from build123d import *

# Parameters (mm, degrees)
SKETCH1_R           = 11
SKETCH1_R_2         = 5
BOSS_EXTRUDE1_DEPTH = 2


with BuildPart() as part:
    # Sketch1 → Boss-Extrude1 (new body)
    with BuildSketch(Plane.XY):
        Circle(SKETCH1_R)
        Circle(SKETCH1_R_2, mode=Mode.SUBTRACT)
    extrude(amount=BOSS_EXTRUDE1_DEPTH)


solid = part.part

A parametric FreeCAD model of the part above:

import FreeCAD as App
import Part
import Sketcher
from FreeCAD import Vector

doc = App.newDocument("Part")
body = doc.addObject("PartDesign::Body", "Body")

# Sketch on XY plane
sketch1 = doc.addObject("Sketcher::SketchObject", "Sketch")
body.addObject(sketch1)
sketch1.AttachmentSupport = (doc.XY_Plane, [""])
sketch1.MapMode = "FlatFace"
sketch1.addGeometry(Part.Circle(Vector(0, 0, 0), Vector(0, 0, 1), 11), False)
sketch1.addGeometry(Part.Circle(Vector(0, 0, 0), Vector(0, 0, 1), 5), False)
sketch1.addConstraint(Sketcher.Constraint("Coincident", 0, 3, -1, 1))
sketch1.addConstraint(Sketcher.Constraint("Coincident", 1, 3, -1, 1))
sketch1.addConstraint(Sketcher.Constraint("Diameter", 0, 22.0))
sketch1.addConstraint(Sketcher.Constraint("Diameter", 1, 10.0))
pad1 = doc.addObject("PartDesign::Pad", "Pad")
body.addObject(pad1)
pad1.Profile = sketch1
pad1.Length = 2

doc.recompute()
